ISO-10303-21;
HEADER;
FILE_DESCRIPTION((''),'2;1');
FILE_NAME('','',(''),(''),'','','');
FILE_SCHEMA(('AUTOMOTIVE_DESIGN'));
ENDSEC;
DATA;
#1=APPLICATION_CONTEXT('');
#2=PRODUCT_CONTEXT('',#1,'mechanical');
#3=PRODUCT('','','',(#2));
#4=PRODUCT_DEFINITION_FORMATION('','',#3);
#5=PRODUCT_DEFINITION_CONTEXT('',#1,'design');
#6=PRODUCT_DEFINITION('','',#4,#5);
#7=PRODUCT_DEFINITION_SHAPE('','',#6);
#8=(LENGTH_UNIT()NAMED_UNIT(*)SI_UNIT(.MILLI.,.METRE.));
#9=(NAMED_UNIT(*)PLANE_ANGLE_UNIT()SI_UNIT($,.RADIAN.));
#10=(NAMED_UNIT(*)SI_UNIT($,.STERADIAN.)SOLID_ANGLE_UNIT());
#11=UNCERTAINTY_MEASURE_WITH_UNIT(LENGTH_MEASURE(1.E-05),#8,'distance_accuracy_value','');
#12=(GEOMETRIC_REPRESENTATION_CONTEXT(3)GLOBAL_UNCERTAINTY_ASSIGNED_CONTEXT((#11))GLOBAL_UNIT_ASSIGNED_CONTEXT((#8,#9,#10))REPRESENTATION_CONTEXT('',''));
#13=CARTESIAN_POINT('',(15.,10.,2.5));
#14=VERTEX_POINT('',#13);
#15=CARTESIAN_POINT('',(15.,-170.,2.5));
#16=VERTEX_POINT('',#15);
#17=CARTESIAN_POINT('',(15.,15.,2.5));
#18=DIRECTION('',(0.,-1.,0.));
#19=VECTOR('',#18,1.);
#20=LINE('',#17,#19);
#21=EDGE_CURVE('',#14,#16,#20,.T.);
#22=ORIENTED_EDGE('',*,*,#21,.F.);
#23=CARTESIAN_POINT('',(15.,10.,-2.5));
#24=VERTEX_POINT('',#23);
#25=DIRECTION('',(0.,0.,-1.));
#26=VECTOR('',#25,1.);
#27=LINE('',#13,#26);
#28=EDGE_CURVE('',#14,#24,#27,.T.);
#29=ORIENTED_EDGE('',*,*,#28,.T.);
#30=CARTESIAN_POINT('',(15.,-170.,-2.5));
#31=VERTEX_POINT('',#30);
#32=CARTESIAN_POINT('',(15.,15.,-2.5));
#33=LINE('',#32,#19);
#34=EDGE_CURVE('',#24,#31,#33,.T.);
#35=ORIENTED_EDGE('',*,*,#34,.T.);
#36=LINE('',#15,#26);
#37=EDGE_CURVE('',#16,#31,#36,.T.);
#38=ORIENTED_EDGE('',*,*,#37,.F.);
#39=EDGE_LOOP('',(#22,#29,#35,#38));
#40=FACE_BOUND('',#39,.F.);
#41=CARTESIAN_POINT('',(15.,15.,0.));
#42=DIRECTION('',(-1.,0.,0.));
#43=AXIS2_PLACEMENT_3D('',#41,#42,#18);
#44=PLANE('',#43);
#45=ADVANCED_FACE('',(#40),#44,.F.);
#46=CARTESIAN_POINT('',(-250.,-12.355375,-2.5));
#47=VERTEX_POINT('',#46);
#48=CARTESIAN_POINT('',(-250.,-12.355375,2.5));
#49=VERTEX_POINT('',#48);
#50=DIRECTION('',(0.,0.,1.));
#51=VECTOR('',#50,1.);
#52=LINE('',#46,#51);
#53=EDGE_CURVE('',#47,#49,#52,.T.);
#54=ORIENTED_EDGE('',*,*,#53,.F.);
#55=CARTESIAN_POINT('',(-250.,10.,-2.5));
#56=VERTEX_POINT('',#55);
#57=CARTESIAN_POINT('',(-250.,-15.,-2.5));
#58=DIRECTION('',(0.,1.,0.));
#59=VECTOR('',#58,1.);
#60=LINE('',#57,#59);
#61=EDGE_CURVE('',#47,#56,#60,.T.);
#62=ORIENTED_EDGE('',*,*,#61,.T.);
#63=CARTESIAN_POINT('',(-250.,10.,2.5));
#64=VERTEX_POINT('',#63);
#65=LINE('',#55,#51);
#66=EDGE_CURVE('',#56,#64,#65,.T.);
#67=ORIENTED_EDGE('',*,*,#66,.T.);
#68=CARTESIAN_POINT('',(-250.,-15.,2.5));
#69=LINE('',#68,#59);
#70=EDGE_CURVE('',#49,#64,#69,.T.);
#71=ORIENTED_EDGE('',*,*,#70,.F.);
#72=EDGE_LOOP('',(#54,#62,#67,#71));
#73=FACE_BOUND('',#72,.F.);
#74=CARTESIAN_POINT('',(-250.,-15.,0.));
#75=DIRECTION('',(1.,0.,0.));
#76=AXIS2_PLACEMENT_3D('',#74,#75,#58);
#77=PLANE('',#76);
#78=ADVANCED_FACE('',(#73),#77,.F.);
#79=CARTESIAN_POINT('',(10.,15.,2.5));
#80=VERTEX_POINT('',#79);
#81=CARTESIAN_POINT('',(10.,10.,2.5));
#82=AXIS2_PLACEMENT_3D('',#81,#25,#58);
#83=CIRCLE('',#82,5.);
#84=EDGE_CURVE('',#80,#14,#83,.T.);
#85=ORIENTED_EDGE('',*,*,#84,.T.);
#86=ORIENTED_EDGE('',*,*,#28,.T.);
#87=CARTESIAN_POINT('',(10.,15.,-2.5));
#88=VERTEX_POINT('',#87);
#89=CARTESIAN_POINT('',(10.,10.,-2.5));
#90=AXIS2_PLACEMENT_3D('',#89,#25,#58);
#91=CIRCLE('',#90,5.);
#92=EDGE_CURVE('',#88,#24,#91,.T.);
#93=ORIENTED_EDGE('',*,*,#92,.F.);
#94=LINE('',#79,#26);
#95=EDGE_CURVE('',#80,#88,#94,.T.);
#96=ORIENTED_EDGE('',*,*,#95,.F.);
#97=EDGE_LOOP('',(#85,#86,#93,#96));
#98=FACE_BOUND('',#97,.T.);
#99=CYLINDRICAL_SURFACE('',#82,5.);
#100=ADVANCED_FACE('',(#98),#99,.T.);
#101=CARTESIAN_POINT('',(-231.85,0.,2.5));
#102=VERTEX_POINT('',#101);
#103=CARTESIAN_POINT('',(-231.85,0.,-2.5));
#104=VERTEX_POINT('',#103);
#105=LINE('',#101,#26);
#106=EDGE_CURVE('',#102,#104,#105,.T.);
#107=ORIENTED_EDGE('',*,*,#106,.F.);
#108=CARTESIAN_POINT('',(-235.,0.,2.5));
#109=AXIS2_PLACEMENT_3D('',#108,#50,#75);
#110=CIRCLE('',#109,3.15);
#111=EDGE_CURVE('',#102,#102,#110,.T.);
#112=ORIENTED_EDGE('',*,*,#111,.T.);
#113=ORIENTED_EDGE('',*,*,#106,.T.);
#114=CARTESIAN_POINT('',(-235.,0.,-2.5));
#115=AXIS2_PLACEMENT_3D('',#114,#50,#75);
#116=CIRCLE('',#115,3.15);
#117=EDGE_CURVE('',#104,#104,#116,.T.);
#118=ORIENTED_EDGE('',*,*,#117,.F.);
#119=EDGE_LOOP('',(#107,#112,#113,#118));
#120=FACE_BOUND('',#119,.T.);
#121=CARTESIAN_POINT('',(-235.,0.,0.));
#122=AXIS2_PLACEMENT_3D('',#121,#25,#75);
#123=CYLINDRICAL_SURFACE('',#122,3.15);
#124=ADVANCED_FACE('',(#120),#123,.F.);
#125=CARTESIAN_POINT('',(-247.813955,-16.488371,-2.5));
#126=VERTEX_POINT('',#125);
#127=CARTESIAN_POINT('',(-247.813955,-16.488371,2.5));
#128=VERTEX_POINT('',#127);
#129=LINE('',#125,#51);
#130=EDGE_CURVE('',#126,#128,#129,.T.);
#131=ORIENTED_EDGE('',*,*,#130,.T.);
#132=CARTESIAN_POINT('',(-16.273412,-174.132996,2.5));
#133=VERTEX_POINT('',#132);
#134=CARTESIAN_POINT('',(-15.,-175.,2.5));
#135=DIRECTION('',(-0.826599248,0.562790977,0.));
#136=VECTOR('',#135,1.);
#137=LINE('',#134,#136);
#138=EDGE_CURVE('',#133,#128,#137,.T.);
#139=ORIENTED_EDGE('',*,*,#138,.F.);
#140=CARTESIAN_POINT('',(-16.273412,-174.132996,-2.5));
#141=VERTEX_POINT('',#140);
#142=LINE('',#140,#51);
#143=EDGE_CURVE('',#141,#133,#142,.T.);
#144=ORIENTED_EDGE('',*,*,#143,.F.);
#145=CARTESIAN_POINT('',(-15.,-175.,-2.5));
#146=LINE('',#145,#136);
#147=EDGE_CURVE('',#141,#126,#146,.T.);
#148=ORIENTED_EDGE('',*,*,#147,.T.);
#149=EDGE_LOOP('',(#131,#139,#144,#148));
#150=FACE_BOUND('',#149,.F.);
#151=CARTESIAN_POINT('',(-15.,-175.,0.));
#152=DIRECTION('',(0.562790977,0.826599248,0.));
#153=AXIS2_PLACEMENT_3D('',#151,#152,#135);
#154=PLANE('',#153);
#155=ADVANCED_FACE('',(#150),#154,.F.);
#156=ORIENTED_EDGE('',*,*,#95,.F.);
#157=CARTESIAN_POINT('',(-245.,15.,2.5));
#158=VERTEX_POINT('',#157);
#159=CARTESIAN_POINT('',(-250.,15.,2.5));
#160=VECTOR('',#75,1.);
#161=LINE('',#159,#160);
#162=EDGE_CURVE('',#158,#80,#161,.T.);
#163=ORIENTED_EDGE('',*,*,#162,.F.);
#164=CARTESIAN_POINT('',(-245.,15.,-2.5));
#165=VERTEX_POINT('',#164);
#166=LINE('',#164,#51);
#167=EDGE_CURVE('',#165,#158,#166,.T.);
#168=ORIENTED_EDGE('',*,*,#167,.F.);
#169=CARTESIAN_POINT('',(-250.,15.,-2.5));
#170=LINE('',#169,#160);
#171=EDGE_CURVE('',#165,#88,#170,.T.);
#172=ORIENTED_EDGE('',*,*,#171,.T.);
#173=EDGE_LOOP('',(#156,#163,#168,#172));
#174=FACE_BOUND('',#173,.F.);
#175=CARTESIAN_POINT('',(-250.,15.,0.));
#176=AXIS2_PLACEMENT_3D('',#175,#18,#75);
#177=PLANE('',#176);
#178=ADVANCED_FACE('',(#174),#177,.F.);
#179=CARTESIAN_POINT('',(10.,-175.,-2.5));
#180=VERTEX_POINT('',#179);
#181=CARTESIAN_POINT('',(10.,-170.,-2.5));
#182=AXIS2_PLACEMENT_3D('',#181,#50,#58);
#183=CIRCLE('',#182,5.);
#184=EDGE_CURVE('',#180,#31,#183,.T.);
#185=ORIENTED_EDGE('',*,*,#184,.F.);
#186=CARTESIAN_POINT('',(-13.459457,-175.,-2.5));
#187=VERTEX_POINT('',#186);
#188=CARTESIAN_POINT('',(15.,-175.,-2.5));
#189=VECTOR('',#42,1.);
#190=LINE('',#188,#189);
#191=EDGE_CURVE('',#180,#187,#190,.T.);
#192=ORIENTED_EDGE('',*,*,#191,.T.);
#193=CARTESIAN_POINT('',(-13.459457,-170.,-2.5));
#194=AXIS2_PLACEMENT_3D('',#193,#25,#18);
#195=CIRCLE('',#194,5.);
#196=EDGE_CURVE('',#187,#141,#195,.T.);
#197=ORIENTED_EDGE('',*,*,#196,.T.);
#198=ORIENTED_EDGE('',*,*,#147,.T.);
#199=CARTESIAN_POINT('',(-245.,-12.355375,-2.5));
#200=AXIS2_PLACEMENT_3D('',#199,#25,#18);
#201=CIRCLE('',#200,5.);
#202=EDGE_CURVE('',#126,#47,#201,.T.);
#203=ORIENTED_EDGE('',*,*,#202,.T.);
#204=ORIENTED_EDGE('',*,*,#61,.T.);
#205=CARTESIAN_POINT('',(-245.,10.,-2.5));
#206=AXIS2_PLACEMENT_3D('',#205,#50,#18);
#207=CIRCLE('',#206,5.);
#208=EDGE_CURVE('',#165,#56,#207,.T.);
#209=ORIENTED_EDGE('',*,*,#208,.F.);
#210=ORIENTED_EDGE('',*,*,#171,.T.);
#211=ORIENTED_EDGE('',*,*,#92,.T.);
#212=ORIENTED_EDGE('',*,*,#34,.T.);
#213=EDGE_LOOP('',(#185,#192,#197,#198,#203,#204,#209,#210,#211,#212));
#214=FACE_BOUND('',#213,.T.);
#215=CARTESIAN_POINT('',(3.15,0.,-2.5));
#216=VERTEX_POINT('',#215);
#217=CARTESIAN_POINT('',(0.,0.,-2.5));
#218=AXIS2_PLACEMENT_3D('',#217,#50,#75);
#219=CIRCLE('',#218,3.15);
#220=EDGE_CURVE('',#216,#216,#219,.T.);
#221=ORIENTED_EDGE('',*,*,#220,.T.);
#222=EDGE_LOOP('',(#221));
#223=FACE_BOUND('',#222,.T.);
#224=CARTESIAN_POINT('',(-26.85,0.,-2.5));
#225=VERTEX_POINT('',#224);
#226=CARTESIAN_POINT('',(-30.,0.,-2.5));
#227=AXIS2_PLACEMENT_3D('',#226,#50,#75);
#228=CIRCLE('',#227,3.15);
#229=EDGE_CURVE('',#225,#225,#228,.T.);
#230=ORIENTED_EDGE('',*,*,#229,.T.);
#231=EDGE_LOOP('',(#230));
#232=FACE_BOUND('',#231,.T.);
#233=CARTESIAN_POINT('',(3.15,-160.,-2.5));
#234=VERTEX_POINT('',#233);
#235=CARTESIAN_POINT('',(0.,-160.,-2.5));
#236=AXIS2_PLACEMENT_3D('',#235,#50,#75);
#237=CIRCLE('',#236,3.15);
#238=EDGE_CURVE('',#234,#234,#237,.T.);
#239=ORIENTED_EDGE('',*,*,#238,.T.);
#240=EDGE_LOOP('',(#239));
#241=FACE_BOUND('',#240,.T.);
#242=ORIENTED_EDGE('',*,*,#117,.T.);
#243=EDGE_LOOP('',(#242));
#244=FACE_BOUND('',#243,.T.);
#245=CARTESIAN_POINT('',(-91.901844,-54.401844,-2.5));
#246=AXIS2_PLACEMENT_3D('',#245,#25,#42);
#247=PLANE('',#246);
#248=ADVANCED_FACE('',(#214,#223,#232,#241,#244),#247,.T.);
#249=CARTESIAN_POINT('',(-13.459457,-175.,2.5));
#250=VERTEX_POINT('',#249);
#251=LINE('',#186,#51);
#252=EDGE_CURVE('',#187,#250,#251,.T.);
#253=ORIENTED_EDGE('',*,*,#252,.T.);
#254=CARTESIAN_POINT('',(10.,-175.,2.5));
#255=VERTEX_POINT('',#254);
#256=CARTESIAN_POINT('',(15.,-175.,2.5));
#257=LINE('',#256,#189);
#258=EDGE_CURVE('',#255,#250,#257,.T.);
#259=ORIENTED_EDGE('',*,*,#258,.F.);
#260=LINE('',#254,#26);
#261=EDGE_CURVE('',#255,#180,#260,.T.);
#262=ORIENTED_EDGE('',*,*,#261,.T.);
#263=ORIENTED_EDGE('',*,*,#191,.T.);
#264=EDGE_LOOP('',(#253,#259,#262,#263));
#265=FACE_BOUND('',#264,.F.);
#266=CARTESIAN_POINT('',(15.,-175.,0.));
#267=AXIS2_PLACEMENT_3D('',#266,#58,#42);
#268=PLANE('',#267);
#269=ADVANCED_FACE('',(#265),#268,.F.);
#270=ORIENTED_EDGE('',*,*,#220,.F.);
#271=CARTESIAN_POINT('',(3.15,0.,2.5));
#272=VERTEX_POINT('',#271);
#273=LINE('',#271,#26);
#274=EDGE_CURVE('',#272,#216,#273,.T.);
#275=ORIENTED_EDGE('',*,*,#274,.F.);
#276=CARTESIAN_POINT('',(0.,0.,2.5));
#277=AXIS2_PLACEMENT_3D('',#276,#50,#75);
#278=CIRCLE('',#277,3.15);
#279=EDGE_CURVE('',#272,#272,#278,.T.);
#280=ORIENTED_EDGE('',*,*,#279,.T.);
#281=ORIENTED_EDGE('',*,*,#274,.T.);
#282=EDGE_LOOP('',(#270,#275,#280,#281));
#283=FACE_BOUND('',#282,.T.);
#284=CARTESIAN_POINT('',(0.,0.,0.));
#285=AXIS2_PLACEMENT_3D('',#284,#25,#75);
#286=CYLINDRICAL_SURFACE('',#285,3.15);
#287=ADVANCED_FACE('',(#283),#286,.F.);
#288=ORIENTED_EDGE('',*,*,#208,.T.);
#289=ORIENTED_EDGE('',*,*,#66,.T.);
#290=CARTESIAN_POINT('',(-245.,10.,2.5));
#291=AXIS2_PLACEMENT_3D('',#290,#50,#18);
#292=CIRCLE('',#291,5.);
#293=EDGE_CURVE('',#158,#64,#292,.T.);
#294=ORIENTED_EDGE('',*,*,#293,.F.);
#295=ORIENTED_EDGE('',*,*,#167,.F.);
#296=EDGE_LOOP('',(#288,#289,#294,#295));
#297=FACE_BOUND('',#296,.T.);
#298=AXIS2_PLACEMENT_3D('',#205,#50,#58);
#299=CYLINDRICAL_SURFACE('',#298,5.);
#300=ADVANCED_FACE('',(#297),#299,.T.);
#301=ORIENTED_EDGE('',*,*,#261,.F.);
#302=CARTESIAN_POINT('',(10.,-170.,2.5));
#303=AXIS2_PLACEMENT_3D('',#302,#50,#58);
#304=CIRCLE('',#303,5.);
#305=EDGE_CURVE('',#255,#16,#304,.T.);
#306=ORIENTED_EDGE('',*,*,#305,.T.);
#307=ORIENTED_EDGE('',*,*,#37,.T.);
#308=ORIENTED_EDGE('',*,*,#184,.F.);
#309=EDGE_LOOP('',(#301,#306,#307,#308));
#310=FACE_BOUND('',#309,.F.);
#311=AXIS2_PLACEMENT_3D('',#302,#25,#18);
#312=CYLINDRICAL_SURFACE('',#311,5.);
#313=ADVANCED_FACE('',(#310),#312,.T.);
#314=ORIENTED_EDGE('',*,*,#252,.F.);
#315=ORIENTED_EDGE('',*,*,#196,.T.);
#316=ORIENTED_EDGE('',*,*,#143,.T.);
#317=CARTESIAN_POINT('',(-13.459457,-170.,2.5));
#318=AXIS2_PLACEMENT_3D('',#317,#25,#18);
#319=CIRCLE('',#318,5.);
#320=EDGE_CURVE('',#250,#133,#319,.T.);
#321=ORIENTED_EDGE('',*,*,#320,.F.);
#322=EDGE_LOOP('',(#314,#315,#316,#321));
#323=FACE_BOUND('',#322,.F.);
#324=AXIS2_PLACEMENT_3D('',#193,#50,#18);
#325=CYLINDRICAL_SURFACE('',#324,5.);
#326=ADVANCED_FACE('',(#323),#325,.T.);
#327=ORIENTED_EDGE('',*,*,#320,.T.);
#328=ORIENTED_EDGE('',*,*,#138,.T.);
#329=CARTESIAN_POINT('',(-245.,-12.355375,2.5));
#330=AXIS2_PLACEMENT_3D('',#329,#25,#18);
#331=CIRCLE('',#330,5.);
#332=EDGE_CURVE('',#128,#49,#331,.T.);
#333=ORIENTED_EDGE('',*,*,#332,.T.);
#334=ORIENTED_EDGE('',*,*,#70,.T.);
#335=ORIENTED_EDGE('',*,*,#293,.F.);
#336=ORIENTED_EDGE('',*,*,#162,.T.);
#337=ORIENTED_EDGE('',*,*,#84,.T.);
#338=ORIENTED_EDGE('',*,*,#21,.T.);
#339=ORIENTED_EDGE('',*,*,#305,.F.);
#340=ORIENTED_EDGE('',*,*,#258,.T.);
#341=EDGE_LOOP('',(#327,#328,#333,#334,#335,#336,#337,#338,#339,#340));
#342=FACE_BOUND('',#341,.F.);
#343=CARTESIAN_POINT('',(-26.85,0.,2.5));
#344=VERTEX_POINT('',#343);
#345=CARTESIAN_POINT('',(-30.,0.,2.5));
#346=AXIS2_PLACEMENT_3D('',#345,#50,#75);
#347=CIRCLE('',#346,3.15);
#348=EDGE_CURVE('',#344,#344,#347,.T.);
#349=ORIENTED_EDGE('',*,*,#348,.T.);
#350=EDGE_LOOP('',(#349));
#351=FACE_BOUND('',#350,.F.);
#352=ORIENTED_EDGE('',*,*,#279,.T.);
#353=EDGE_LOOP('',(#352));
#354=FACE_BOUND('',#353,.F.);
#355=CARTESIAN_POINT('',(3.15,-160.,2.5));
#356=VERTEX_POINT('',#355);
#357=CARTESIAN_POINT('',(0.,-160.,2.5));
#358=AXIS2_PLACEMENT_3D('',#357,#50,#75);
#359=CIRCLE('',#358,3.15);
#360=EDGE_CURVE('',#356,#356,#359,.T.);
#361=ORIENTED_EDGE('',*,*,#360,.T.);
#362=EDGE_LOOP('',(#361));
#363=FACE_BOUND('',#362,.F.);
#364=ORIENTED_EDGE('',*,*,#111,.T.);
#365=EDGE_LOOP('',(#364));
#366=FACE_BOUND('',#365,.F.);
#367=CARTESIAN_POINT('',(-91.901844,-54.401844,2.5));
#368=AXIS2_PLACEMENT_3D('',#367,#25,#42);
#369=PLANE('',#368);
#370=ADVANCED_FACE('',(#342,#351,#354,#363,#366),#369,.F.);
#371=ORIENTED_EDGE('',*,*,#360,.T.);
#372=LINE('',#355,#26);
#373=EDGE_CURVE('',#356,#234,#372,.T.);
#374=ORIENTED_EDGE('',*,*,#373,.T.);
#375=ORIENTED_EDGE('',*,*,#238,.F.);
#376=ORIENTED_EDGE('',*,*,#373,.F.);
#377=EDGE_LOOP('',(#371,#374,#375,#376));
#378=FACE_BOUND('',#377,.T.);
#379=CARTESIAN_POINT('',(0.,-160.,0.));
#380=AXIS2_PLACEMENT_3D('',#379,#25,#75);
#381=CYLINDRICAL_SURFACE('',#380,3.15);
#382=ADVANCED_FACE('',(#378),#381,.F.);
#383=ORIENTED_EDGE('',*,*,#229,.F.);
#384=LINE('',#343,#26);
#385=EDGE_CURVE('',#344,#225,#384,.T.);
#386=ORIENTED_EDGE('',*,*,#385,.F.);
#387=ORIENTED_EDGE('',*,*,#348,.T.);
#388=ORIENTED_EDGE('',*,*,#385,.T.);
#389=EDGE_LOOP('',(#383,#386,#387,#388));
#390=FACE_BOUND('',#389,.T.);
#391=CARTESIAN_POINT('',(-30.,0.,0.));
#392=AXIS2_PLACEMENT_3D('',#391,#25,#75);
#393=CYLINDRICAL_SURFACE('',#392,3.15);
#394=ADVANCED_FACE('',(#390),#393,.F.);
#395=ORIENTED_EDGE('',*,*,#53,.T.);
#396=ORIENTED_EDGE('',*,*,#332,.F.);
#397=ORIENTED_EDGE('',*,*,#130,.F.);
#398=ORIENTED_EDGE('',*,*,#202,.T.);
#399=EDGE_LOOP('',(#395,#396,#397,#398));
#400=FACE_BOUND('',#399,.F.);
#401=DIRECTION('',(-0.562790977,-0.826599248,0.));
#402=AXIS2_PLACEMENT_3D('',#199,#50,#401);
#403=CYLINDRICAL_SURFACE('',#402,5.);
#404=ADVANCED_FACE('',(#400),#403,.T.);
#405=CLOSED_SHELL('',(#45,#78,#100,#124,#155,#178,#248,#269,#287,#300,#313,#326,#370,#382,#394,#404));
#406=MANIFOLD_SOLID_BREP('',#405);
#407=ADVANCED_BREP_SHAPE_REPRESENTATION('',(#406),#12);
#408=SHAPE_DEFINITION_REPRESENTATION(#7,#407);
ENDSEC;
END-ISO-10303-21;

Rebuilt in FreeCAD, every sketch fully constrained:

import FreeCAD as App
import Part
import Sketcher
from FreeCAD import Vector
Q = App.Units.Quantity


def edges_at(feature, points):
    """Names of the edges that pass closest to the given points."""
    edges = feature.Shape.Edges
    near = lambda p: min(range(len(edges)), key=lambda i: edges[i].distToShape(Part.Vertex(*p))[0])
    return sorted({f"Edge{near(p) + 1}" for p in points})


def add_polygon(sketch, points):
    """Adds a closed chain of lines whose ends are joined by coincident constraints."""
    first, n = sketch.GeometryCount, len(points)
    for a, b in zip(points, points[1:] + points[:1]):
        sketch.addGeometry(Part.LineSegment(App.Vector(*a, 0), App.Vector(*b, 0)), False)
    for i in range(n):
        sketch.addConstraint(Sketcher.Constraint("Coincident", first + i, 2, first + (i + 1) % n, 1))

doc = App.newDocument("Part")
body = doc.addObject("PartDesign::Body", "Body")

sketch1 = body.newObject("Sketcher::SketchObject", "Sketch")
sketch1.AttachmentSupport = (doc.getObject("XY_Plane"), [""])
sketch1.MapMode = "FlatFace"
add_polygon(sketch1, [(15, 15), (-250, 15), (-250, -15), (-15, -175), (15, -175)])
sketch1.addGeometry(Part.Circle(Vector(0, -160, 0), Vector(0, 0, 1), 3.15), False)
sketch1.addGeometry(Part.Circle(Vector(0, 0, 0), Vector(0, 0, 1), 3.15), False)
sketch1.addGeometry(Part.Circle(Vector(-30, 0, 0), Vector(0, 0, 1), 3.15), False)
sketch1.addGeometry(Part.Circle(Vector(-235, 0, 0), Vector(0, 0, 1), 3.15), False)
sketch1.addConstraint(Sketcher.Constraint("Horizontal", 0))
sketch1.addConstraint(Sketcher.Constraint("Vertical", 1))
sketch1.addConstraint(Sketcher.Constraint("Horizontal", 3))
sketch1.addConstraint(Sketcher.Constraint("Vertical", 4))
sketch1.addConstraint(Sketcher.Constraint("Coincident", 6, 3, -1, 1))
sketch1.addConstraint(Sketcher.Constraint("Equal", 5, 6))
sketch1.addConstraint(Sketcher.Constraint("Equal", 6, 7))
sketch1.addConstraint(Sketcher.Constraint("Equal", 7, 8))
sketch1.addConstraint(Sketcher.Constraint("PointOnObject", 5, 3, -2))
sketch1.addConstraint(Sketcher.Constraint("PointOnObject", 7, 3, -1))
sketch1.addConstraint(Sketcher.Constraint("PointOnObject", 8, 3, -1))
sketch1.addConstraint(Sketcher.Constraint("Equal", 3, 1))
sketch1.addConstraint(Sketcher.Constraint("Diameter", 5, Q("6.3 mm")))
sketch1.addConstraint(Sketcher.Constraint("DistanceX", 0, 2, 0, 1, Q("265 mm")))
sketch1.addConstraint(Sketcher.Constraint("DistanceX", 3, 1, 3, 2, Q("30 mm")))
sketch1.addConstraint(Sketcher.Constraint("DistanceY", 4, 1, 4, 2, Q("190 mm")))
sketch1.addConstraint(Sketcher.Constraint("DistanceY", 5, 3, -1, 1, Q("160 mm")))
sketch1.addConstraint(Sketcher.Constraint("DistanceX", 7, 3, -1, 1, Q("30 mm")))
sketch1.addConstraint(Sketcher.Constraint("DistanceX", 8, 3, -1, 1, Q("235 mm")))
sketch1.addConstraint(Sketcher.Constraint("DistanceX", 0, 2, -1, 1, Q("250 mm")))
sketch1.addConstraint(Sketcher.Constraint("DistanceY", -1, 1, 0, 2, Q("15 mm")))
pad1 = body.newObject("PartDesign::Pad", "Pad")
pad1.Profile = sketch1
pad1.Length = 5
pad1.Midplane = True
doc.recompute()

fillet = body.newObject("PartDesign::Fillet", "Fillet")
fillet.Base = (pad1, edges_at(pad1, [
    (-250, 15, 0),
    (-250, -15, 0),
    (15, 15, 0),
    (-15, -175, 0),
    (15, -175, 0),
]))
fillet.Radius = 5

doc.recompute()
